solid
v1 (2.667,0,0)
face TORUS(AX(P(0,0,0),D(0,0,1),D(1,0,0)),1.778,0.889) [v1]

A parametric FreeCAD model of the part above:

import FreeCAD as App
import Part
import Sketcher
from FreeCAD import Vector
Q = App.Units.Quantity

doc = App.newDocument("Part")
params = doc.addObject("Spreadsheet::Sheet", "Params")
for row, (alias, value) in enumerate([
    ("sketch1_diameter", "0.07 in"),
    ("revolution_angle", "360 deg"),
], start=1):
    params.set(f"A{row}", alias)
    params.set(f"B{row}", "=" + value)
    params.setAlias(f"B{row}", alias)

body = doc.addObject("PartDesign::Body", "Body")

sketch1 = body.newObject("Sketcher::SketchObject", "Sketch")
sketch1.AttachmentSupport = (doc.getObject("YZ_Plane"), [""])
sketch1.MapMode = "FlatFace"
sketch1.addGeometry(Part.Circle(Vector(-1.778, 0, 0), Vector(0, 0, 1), 0.889), False)
sketch1.addConstraint(Sketcher.Constraint("PointOnObject", 0, 3, -1))
sketch1.addConstraint(Sketcher.Constraint("Diameter", 0, Q("0.07 in")))
sketch1.addConstraint(Sketcher.Constraint("DistanceX", 0, 3, -1, 1, Q("0.07 in")))
sketch1.setExpression("Constraints[1]", "Params.sketch1_diameter")
revolution = body.newObject("PartDesign::Revolution", "Revolution")
revolution.Profile = sketch1
revolution.ReferenceAxis = (sketch1, ["V_Axis"])
revolution.setExpression("Angle", "Params.revolution_angle")

doc.recompute()
